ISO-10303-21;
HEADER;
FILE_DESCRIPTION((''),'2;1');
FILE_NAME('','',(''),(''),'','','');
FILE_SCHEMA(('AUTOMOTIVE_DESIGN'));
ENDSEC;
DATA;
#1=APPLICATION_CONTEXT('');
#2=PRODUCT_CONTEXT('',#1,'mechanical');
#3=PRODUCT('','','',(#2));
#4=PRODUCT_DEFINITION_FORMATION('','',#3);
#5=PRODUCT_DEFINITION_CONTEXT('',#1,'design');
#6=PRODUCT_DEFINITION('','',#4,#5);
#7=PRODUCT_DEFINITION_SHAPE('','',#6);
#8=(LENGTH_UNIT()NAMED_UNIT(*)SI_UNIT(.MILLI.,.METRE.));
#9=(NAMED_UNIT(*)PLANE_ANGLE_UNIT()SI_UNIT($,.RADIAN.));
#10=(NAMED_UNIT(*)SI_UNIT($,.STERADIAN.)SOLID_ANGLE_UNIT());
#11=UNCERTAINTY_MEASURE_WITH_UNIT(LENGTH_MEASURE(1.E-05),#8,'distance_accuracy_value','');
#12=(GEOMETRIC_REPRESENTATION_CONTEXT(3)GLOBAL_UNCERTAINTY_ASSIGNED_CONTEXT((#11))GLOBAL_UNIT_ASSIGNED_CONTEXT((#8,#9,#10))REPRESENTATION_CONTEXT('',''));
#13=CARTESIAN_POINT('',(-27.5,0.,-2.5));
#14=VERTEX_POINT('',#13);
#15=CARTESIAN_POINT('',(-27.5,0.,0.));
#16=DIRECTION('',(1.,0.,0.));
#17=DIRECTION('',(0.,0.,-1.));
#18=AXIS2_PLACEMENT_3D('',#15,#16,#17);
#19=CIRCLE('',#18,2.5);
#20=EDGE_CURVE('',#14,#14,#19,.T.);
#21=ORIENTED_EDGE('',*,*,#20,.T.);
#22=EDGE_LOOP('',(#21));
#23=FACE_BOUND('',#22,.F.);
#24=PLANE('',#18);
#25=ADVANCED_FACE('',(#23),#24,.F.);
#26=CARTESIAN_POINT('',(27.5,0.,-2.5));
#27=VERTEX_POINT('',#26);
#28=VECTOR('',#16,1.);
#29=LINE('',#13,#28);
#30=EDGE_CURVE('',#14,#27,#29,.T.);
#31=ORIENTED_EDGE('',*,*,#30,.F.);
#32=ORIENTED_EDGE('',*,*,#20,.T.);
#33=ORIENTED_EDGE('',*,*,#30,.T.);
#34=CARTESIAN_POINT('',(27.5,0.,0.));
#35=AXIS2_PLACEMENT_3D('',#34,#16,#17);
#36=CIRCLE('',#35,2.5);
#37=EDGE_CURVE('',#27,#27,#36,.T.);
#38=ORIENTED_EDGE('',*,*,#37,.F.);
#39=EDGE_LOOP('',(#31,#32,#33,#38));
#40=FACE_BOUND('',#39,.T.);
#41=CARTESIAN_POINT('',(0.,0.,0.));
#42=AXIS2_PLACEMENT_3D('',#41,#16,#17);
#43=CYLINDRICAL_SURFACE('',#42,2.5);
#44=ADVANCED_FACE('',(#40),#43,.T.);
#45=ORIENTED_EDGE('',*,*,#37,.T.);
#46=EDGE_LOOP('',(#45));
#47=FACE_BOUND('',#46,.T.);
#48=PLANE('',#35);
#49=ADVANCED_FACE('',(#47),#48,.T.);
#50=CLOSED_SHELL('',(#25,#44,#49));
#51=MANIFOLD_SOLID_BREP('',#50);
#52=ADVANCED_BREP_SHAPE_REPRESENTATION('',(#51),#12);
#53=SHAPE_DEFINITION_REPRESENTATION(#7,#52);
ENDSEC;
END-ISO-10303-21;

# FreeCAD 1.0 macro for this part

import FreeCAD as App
import Part
import Sketcher
from FreeCAD import Vector
Q = App.Units.Quantity

doc = App.newDocument("Part")
body = doc.addObject("PartDesign::Body", "Body")

# Sketch on YZ plane
sketch1 = body.newObject("Sketcher::SketchObject", "Sketch")
sketch1.AttachmentSupport = (doc.getObject("YZ_Plane"), [""])
sketch1.MapMode = "FlatFace"
sketch1.addGeometry(Part.Circle(Vector(0, 0, 0), Vector(0, 0, 1), 2.5), False)
sketch1.addConstraint([
    Sketcher.Constraint("Coincident", 0, 3, -1, 1),
    Sketcher.Constraint("Diameter", 0, Q("5 mm")),
])
pad1 = body.newObject("PartDesign::Pad", "Pad")
pad1.Profile = sketch1
pad1.Length = 55
pad1.Midplane = True

doc.recompute()
